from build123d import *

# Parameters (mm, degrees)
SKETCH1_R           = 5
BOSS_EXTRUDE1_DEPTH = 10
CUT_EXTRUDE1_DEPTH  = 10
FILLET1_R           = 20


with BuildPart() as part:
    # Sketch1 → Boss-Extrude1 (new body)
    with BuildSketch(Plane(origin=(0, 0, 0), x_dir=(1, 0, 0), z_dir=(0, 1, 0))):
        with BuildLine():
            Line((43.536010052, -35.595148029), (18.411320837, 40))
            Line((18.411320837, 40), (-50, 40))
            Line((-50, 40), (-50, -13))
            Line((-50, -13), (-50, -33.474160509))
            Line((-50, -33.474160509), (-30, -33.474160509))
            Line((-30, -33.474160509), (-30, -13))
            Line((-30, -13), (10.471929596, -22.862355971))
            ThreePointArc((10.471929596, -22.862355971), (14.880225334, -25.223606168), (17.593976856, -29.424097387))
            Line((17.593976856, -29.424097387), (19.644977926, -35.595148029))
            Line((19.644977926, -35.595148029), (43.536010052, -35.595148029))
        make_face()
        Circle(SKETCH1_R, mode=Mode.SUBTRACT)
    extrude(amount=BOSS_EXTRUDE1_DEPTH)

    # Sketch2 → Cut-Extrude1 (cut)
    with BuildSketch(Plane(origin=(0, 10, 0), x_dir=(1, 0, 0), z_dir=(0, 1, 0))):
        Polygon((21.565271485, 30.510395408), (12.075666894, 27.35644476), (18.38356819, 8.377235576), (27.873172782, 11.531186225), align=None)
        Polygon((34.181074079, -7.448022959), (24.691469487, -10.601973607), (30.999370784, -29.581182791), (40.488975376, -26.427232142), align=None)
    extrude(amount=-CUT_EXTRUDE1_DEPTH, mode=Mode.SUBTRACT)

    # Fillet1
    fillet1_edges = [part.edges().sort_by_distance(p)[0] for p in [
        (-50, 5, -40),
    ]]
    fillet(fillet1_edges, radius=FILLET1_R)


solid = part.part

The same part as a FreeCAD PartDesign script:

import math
import FreeCAD as App
import Part
import Sketcher

V = App.Vector
Q = App.Units.Quantity


def edges_at(feature, points):
    """Names of the edges that pass closest to the given points."""
    edges = feature.Shape.Edges
    near = lambda p: min(range(len(edges)), key=lambda i: edges[i].distToShape(Part.Vertex(*p))[0])
    return sorted({f"Edge{near(p) + 1}" for p in points})


def add_polygon(sketch, points):
    """Adds a closed chain of lines whose ends are joined by coincident constraints."""
    first, n = sketch.GeometryCount, len(points)
    for a, b in zip(points, points[1:] + points[:1]):
        sketch.addGeometry(Part.LineSegment(App.Vector(*a, 0), App.Vector(*b, 0)), False)
    for i in range(n):
        sketch.addConstraint(Sketcher.Constraint("Coincident", first + i, 2, first + (i + 1) % n, 1))

doc = App.newDocument("Part")
params = doc.addObject("Spreadsheet::Sheet", "Params")
for row, (alias, value) in enumerate([
    ("sketch1_diameter", "10 mm"),
    ("sketch1_radius", "10 mm"),
    ("sketch1_width", "20 mm"),
    ("pad1_length", "10 mm"),
    ("sketch2_length", "10 mm"),
    ("sketch2_length2", "20 mm"),
    ("pocket1_length", "10 mm"),
    ("fillet_radius", "20 mm"),
], start=1):
    params.set(f"A{row}", alias)
    params.set(f"B{row}", "=" + value)
    params.setAlias(f"B{row}", alias)

body = doc.addObject("PartDesign::Body", "Body")

# Sketch on XZ plane
sketch1 = doc.addObject("Sketcher::SketchObject", "Sketch")
body.addObject(sketch1)
sketch1.AttachmentSupport = (doc.XZ_Plane, [""])
sketch1.MapMode = "FlatFace"
sketch1.addGeometry(Part.LineSegment(V(43.53601, 35.595148, 0), V(18.411321, -40, 0)), False)
sketch1.addGeometry(Part.LineSegment(V(18.411321, -40, 0), V(-50, -40, 0)), False)
sketch1.addGeometry(Part.LineSegment(V(-50, -40, 0), V(-50, 33.474161, 0)), False)
sketch1.addGeometry(Part.LineSegment(V(-50, 33.474161, 0), V(-30, 33.474161, 0)), False)
sketch1.addGeometry(Part.LineSegment(V(-30, 33.474161, 0), V(-30, 13, 0)), False)
sketch1.addGeometry(Part.LineSegment(V(-30, 13, 0), V(10.47193, 22.862356, 0)), False)
sketch1.addGeometry(Part.ArcOfCircle(Part.Circle(V(8.104372, 32.578048, 0), V(0, 0, 1), 10), math.radians(-76.30486), math.radians(-18.384665)), False)
sketch1.addGeometry(Part.LineSegment(V(17.593977, 29.424097, 0), V(19.644978, 35.595148, 0)), False)
sketch1.addGeometry(Part.LineSegment(V(19.644978, 35.595148, 0), V(43.53601, 35.595148, 0)), False)
sketch1.addGeometry(Part.Circle(V(0, 0, 0), V(0, 0, 1), 5), False)
sketch1.addConstraint(Sketcher.Constraint("Coincident", 0, 2, 1, 1))
sketch1.addConstraint(Sketcher.Constraint("Coincident", 1, 2, 2, 1))
sketch1.addConstraint(Sketcher.Constraint("Coincident", 2, 2, 3, 1))
sketch1.addConstraint(Sketcher.Constraint("Coincident", 3, 2, 4, 1))
sketch1.addConstraint(Sketcher.Constraint("Coincident", 4, 2, 5, 1))
sketch1.addConstraint(Sketcher.Constraint("Tangent", 5, 2, 6, 1))
sketch1.addConstraint(Sketcher.Constraint("Tangent", 6, 2, 7, 1))
sketch1.addConstraint(Sketcher.Constraint("Coincident", 7, 2, 8, 1))
sketch1.addConstraint(Sketcher.Constraint("Coincident", 8, 2, 0, 1))
sketch1.addConstraint(Sketcher.Constraint("Horizontal", 1))
sketch1.addConstraint(Sketcher.Constraint("Vertical", 2))
sketch1.addConstraint(Sketcher.Constraint("Horizontal", 3))
sketch1.addConstraint(Sketcher.Constraint("Vertical", 4))
sketch1.addConstraint(Sketcher.Constraint("Horizontal", 8))
sketch1.addConstraint(Sketcher.Constraint("Coincident", 9, 3, -1, 1))
sketch1.addConstraint(Sketcher.Constraint("Parallel", 0, 7))
sketch1.addConstraint(Sketcher.Constraint("Diameter", 9, Q("10 mm")))
sketch1.addConstraint(Sketcher.Constraint("Radius", 6, Q("10 mm")))
sketch1.addConstraint(Sketcher.Constraint("DistanceX", 3, 1, 3, 2, Q("20 mm")))
sketch1.addConstraint(Sketcher.Constraint("DistanceY", 0, 2, -1, 1, Q("40 mm")))
sketch1.addConstraint(Sketcher.Constraint("DistanceX", 1, 2, -1, 1, Q("50 mm")))
sketch1.addConstraint(Sketcher.Constraint("DistanceY", -1, 1, 4, 2, Q("13 mm")))
sketch1.addConstraint(Sketcher.Constraint("DistanceX", 6, 2, 7, 2, Q("2.051001 mm")))
sketch1.addConstraint(Sketcher.Constraint("DistanceX", 1, 2, 1, 1, Q("68.411321 mm")))
sketch1.addConstraint(Sketcher.Constraint("DistanceY", 2, 1, 2, 2, Q("73.474161 mm")))
sketch1.addConstraint(Sketcher.Constraint("DistanceY", 6, 3, 7, 2, Q("3.0171 mm")))
sketch1.addConstraint(Sketcher.Constraint("Distance", 0, Q("79.661009 mm")))
sketch1.addConstraint(Sketcher.Constraint("Distance", 5, Q("41.65625 mm")))
sketch1.setExpression("Constraints[16]", "Params.sketch1_diameter")
sketch1.setExpression("Constraints[17]", "Params.sketch1_radius")
sketch1.setExpression("Constraints[18]", "Params.sketch1_width")
pad1 = doc.addObject("PartDesign::Pad", "Pad")
body.addObject(pad1)
pad1.Profile = sketch1
pad1.setExpression("Length", "Params.pad1_length")
pad1.Reversed = True

# Sketch on XZ plane
sketch2 = doc.addObject("Sketcher::SketchObject", "Sketch001")
body.addObject(sketch2)
sketch2.AttachmentSupport = (doc.XZ_Plane, [""])
sketch2.MapMode = "FlatFace"
sketch2.AttachmentOffset = App.Placement(V(0, 0, -10), App.Rotation())
add_polygon(sketch2, [(21.565271, -30.510395), (12.075667, -27.356445), (18.383568, -8.377236), (27.873173, -11.531186)])  # lines 0-3
add_polygon(sketch2, [(34.181074, 7.448023), (24.691469, 10.601974), (30.999371, 29.581183), (40.488975, 26.427232)])  # lines 4-7
sketch2.addConstraint(Sketcher.Constraint("Perpendicular", 0, 1))
sketch2.addConstraint(Sketcher.Constraint("Perpendicular", 1, 2))
sketch2.addConstraint(Sketcher.Constraint("Perpendicular", 2, 3))
sketch2.addConstraint(Sketcher.Constraint("Perpendicular", 3, 4))
sketch2.addConstraint(Sketcher.Constraint("Perpendicular", 4, 5))
sketch2.addConstraint(Sketcher.Constraint("Perpendicular", 5, 6))
sketch2.addConstraint(Sketcher.Constraint("Perpendicular", 6, 7))
sketch2.addConstraint(Sketcher.Constraint("Equal", 2, 4))
sketch2.addConstraint(Sketcher.Constraint("Equal", 3, 5))
sketch2.addConstraint(Sketcher.Constraint("Distance", 0, Q("10 mm")))
sketch2.addConstraint(Sketcher.Constraint("Distance", 1, Q("20 mm")))
sketch2.addConstraint(Sketcher.Constraint("DistanceX", 0, 2, 1, 2, Q("6.307901 mm")))
sketch2.addConstraint(Sketcher.Constraint("DistanceX", 1, 2, 4, 2, Q("6.307901 mm")))
sketch2.addConstraint(Sketcher.Constraint("DistanceX", -1, 1, 1, 2, Q("18.383568 mm")))
sketch2.addConstraint(Sketcher.Constraint("DistanceY", 1, 2, 4, 2, Q("18.979209 mm")))
sketch2.addConstraint(Sketcher.Constraint("DistanceY", 0, 2, -1, 1, Q("27.356445 mm")))
sketch2.setExpression("Constraints[17]", "Params.sketch2_length")
sketch2.setExpression("Constraints[18]", "Params.sketch2_length2")
pocket1 = doc.addObject("PartDesign::Pocket", "Pocket")
body.addObject(pocket1)
pocket1.Profile = sketch2
pocket1.setExpression("Length", "Params.pocket1_length")
pocket1.Reversed = True
doc.recompute()

fillet = doc.addObject("PartDesign::Fillet", "Fillet")
body.addObject(fillet)
fillet.Base = (pocket1, edges_at(pocket1, [(-50, 5, -40)]))
fillet.setExpression("Radius", "Params.fillet_radius")

doc.recompute()
